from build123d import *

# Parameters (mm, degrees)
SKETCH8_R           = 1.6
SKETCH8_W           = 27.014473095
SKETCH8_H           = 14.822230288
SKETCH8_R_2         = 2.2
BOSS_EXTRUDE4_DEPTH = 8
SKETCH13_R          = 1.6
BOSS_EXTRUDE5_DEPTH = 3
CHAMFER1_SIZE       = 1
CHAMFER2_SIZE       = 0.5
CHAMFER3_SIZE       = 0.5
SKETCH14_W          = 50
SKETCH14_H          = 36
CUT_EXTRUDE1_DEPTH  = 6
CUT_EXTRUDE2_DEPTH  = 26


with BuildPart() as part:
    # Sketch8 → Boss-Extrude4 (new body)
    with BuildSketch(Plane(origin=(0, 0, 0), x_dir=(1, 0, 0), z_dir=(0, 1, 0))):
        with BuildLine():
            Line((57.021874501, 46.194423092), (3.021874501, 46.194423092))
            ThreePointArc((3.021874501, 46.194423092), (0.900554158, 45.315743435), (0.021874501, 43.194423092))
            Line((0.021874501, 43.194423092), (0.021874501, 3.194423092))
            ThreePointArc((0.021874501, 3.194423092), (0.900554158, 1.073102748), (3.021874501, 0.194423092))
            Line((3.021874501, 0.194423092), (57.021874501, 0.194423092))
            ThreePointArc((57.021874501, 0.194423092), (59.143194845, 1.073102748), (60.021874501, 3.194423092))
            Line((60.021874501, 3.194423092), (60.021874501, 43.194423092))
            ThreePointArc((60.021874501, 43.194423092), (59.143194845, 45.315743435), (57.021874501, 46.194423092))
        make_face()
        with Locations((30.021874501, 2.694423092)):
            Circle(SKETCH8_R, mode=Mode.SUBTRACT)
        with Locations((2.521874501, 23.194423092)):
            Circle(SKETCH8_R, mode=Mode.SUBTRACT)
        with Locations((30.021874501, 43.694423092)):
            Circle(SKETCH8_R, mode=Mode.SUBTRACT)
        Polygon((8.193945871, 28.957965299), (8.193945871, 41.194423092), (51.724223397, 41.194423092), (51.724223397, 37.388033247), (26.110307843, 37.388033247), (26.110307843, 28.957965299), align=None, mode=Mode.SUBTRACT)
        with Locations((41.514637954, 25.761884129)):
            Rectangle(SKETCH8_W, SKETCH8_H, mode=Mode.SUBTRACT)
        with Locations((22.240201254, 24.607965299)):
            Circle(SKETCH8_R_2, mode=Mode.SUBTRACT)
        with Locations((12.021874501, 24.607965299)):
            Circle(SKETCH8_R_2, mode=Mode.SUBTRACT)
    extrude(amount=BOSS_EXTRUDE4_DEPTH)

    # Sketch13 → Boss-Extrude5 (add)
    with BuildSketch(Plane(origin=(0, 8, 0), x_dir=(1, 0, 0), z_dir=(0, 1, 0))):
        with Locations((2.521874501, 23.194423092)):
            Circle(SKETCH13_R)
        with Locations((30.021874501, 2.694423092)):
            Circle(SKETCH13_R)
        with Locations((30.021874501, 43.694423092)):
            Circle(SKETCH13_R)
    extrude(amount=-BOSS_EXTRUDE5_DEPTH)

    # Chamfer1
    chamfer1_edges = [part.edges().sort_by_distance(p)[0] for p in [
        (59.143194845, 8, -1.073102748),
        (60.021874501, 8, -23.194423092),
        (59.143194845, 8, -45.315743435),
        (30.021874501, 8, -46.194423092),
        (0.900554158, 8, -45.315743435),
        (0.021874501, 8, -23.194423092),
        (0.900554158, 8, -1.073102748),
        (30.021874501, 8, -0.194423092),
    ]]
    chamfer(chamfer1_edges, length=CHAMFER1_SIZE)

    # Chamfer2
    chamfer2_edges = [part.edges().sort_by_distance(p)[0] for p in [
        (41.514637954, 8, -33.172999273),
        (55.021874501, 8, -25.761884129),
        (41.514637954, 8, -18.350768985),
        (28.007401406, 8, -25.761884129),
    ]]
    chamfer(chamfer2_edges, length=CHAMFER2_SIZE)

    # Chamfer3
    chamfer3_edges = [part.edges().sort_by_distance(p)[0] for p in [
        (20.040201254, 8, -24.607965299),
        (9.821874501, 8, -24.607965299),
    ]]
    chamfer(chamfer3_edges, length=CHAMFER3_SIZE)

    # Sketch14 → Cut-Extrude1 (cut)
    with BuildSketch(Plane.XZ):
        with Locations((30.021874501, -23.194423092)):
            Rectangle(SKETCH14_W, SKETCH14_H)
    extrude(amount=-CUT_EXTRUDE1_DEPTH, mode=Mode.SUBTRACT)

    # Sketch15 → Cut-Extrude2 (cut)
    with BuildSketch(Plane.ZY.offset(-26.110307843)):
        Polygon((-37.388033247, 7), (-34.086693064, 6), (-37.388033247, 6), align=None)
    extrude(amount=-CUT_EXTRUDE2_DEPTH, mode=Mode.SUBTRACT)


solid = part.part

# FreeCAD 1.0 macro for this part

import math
import FreeCAD as App
import Part
import Sketcher
from FreeCAD import Vector


def edges_at(feature, points):
    """Names of the edges that pass closest to the given points."""
    edges = feature.Shape.Edges
    near = lambda p: min(range(len(edges)), key=lambda i: edges[i].distToShape(Part.Vertex(*p))[0])
    return sorted({f"Edge{near(p) + 1}" for p in points})

doc = App.newDocument("Part")
body = doc.addObject("PartDesign::Body", "Body")

sketch1 = body.newObject("Sketcher::SketchObject", "Sketch")
sketch1.AttachmentSupport = (doc.getObject("XZ_Plane"), [""])
sketch1.MapMode = "FlatFace"
sketch1.addGeometry(Part.LineSegment(Vector(57, -46.2, 0), Vector(3, -46.2, 0)), False)
sketch1.addGeometry(Part.ArcOfCircle(Part.Circle(Vector(3, -43.2, 0), Vector(0, 0, 1), 3), math.radians(-180), math.radians(-90)), False)
sketch1.addGeometry(Part.LineSegment(Vector(0, -43.2, 0), Vector(0, -3.2, 0)), False)
sketch1.addGeometry(Part.ArcOfCircle(Part.Circle(Vector(3, -3.2, 0), Vector(0, 0, 1), 3), math.radians(90), math.radians(180)), False)
sketch1.addGeometry(Part.LineSegment(Vector(3, -0.2, 0), Vector(57, -0.2, 0)), False)
sketch1.addGeometry(Part.ArcOfCircle(Part.Circle(Vector(57, -3.2, 0), Vector(0, 0, 1), 3), math.radians(0), math.radians(90)), False)
sketch1.addGeometry(Part.LineSegment(Vector(60, -3.2, 0), Vector(60, -43.2, 0)), False)
sketch1.addGeometry(Part.ArcOfCircle(Part.Circle(Vector(57, -43.2, 0), Vector(0, 0, 1), 3), math.radians(-90), math.radians(0)), False)
sketch1.addGeometry(Part.Circle(Vector(30, -2.7, 0), Vector(0, 0, 1), 1.6), False)
sketch1.addGeometry(Part.Circle(Vector(2.5, -23.2, 0), Vector(0, 0, 1), 1.6), False)
sketch1.addGeometry(Part.Circle(Vector(12, -24.6, 0), Vector(0, 0, 1), 2.2), False)
sketch1.addGeometry(Part.Circle(Vector(22.2, -24.6, 0), Vector(0, 0, 1), 2.2), False)
sketch1.addGeometry(Part.LineSegment(Vector(55, -18.4, 0), Vector(28, -18.4, 0)), False)
sketch1.addGeometry(Part.LineSegment(Vector(28, -18.4, 0), Vector(28, -33.2, 0)), False)
sketch1.addGeometry(Part.LineSegment(Vector(28, -33.2, 0), Vector(55, -33.2, 0)), False)
sketch1.addGeometry(Part.LineSegment(Vector(55, -33.2, 0), Vector(55, -18.4, 0)), False)
sketch1.addGeometry(Part.LineSegment(Vector(26.1, -29, 0), Vector(8.2, -29, 0)), False)
sketch1.addGeometry(Part.LineSegment(Vector(8.2, -29, 0), Vector(8.2, -41.2, 0)), False)
sketch1.addGeometry(Part.LineSegment(Vector(8.2, -41.2, 0), Vector(51.7, -41.2, 0)), False)
sketch1.addGeometry(Part.LineSegment(Vector(51.7, -41.2, 0), Vector(51.7, -37.4, 0)), False)
sketch1.addGeometry(Part.LineSegment(Vector(51.7, -37.4, 0), Vector(26.1, -37.4, 0)), False)
sketch1.addGeometry(Part.LineSegment(Vector(26.1, -37.4, 0), Vector(26.1, -29, 0)), False)
sketch1.addGeometry(Part.Circle(Vector(30, -43.7, 0), Vector(0, 0, 1), 1.6), False)
sketch1.addConstraint(Sketcher.Constraint("Tangent", 0, 2, 1, 2))
sketch1.addConstraint(Sketcher.Constraint("Tangent", 1, 1, 2, 1))
sketch1.addConstraint(Sketcher.Constraint("Tangent", 2, 2, 3, 2))
sketch1.addConstraint(Sketcher.Constraint("Tangent", 3, 1, 4, 1))
sketch1.addConstraint(Sketcher.Constraint("Tangent", 4, 2, 5, 2))
sketch1.addConstraint(Sketcher.Constraint("Tangent", 5, 1, 6, 1))
sketch1.addConstraint(Sketcher.Constraint("Tangent", 6, 2, 7, 2))
sketch1.addConstraint(Sketcher.Constraint("Tangent", 7, 1, 0, 1))
sketch1.addConstraint(Sketcher.Constraint("Coincident", 12, 2, 13, 1))
sketch1.addConstraint(Sketcher.Constraint("Coincident", 13, 2, 14, 1))
sketch1.addConstraint(Sketcher.Constraint("Coincident", 14, 2, 15, 1))
sketch1.addConstraint(Sketcher.Constraint("Coincident", 15, 2, 12, 1))
sketch1.addConstraint(Sketcher.Constraint("Coincident", 16, 2, 17, 1))
sketch1.addConstraint(Sketcher.Constraint("Coincident", 17, 2, 18, 1))
sketch1.addConstraint(Sketcher.Constraint("Coincident", 18, 2, 19, 1))
sketch1.addConstraint(Sketcher.Constraint("Coincident", 19, 2, 20, 1))
sketch1.addConstraint(Sketcher.Constraint("Coincident", 20, 2, 21, 1))
sketch1.addConstraint(Sketcher.Constraint("Coincident", 21, 2, 16, 1))
sketch1.addConstraint(Sketcher.Constraint("Horizontal", 0))
sketch1.addConstraint(Sketcher.Constraint("Vertical", 2))
sketch1.addConstraint(Sketcher.Constraint("Horizontal", 4))
sketch1.addConstraint(Sketcher.Constraint("Vertical", 6))
sketch1.addConstraint(Sketcher.Constraint("Horizontal", 12))
sketch1.addConstraint(Sketcher.Constraint("Vertical", 13))
sketch1.addConstraint(Sketcher.Constraint("Horizontal", 14))
sketch1.addConstraint(Sketcher.Constraint("Vertical", 15))
sketch1.addConstraint(Sketcher.Constraint("Horizontal", 16))
sketch1.addConstraint(Sketcher.Constraint("Vertical", 17))
sketch1.addConstraint(Sketcher.Constraint("Horizontal", 18))
sketch1.addConstraint(Sketcher.Constraint("Vertical", 19))
sketch1.addConstraint(Sketcher.Constraint("Horizontal", 20))
sketch1.addConstraint(Sketcher.Constraint("Vertical", 21))
sketch1.addConstraint(Sketcher.Constraint("Equal", 1, 3))
sketch1.addConstraint(Sketcher.Constraint("Equal", 3, 5))
sketch1.addConstraint(Sketcher.Constraint("Equal", 5, 7))
sketch1.addConstraint(Sketcher.Constraint("Equal", 8, 9))
sketch1.addConstraint(Sketcher.Constraint("Equal", 10, 11))
sketch1.addConstraint(Sketcher.Constraint("Equal", 9, 22))
sketch1.addConstraint(Sketcher.Constraint("Horizontal", 10, 3, 11, 3))
sketch1.addConstraint(Sketcher.Constraint("Vertical", 8, 3, 22, 3))
sketch1.addConstraint(Sketcher.Constraint("Radius", 1, 3.0))
sketch1.addConstraint(Sketcher.Constraint("Diameter", 8, 3.2))
sketch1.addConstraint(Sketcher.Constraint("Diameter", 10, 4.4))
sketch1.addConstraint(Sketcher.Constraint("DistanceX", 0, 2, 0, 1, 54.0))
sketch1.addConstraint(Sketcher.Constraint("DistanceY", 2, 1, 2, 2, 40.0))
sketch1.addConstraint(Sketcher.Constraint("DistanceX", 3, 3, 8, 3, 27.0))
sketch1.addConstraint(Sketcher.Constraint("DistanceY", 1, 3, 9, 3, 20.0))
sketch1.addConstraint(Sketcher.Constraint("DistanceX", 1, 3, 10, 3, 9.0))
sketch1.addConstraint(Sketcher.Constraint("DistanceX", 14, 2, 7, 3, 2.0))
sketch1.addConstraint(Sketcher.Constraint("DistanceY", 1, 3, 17, 2, 2.0))
sketch1.addConstraint(Sketcher.Constraint("DistanceY", 3, 3, 8, 3, 0.5))
sketch1.addConstraint(Sketcher.Constraint("DistanceX", 9, 3, 1, 3, 0.5))
sketch1.addConstraint(Sketcher.Constraint("DistanceY", 22, 3, 1, 3, 0.5))
sketch1.addConstraint(Sketcher.Constraint("DistanceY", 16, 2, 10, 3, 4.35))
sketch1.addConstraint(Sketcher.Constraint("DistanceY", 13, 2, -1, 1, 33.172999))
sketch1.addConstraint(Sketcher.Constraint("DistanceX", 16, 2, 16, 1, 17.916362))
sketch1.addConstraint(Sketcher.Constraint("DistanceY", 13, 2, 13, 1, 14.82223))
sketch1.addConstraint(Sketcher.Constraint("DistanceY", 19, 1, 19, 2, 3.80639))
sketch1.addConstraint(Sketcher.Constraint("DistanceX", -1, 1, 11, 3, 22.240201))
sketch1.addConstraint(Sketcher.Constraint("DistanceX", -1, 1, 12, 2, 28.007401))
sketch1.addConstraint(Sketcher.Constraint("DistanceX", 12, 2, 12, 1, 27.014473))
sketch1.addConstraint(Sketcher.Constraint("DistanceX", 18, 1, 18, 2, 43.530278))
sketch1.addConstraint(Sketcher.Constraint("DistanceY", 17, 2, 17, 1, 12.236458))
sketch1.addConstraint(Sketcher.Constraint("DistanceX", 16, 2, 10, 3, 3.827929))
sketch1.addConstraint(Sketcher.Constraint("DistanceY", 1, 3, -1, 1, 43.194423))
pad1 = body.newObject("PartDesign::Pad", "Pad")
pad1.Profile = sketch1
pad1.Length = 8
pad1.Reversed = True

sketch2 = body.newObject("Sketcher::SketchObject", "Sketch001")
sketch2.AttachmentSupport = (doc.getObject("XZ_Plane"), [""])
sketch2.MapMode = "FlatFace"
sketch2.AttachmentOffset = App.Placement(Vector(0, 0, -8), App.Rotation())
sketch2.addGeometry(Part.Circle(Vector(2.5, -23.2, 0), Vector(0, 0, 1), 1.6), False)
sketch2.addGeometry(Part.Circle(Vector(30, -2.7, 0), Vector(0, 0, 1), 1.6), False)
sketch2.addGeometry(Part.Circle(Vector(30, -43.7, 0), Vector(0, 0, 1), 1.6), False)
sketch2.addConstraint(Sketcher.Constraint("Equal", 0, 1))
sketch2.addConstraint(Sketcher.Constraint("Equal", 1, 2))
sketch2.addConstraint(Sketcher.Constraint("Vertical", 1, 3, 2, 3))
sketch2.addConstraint(Sketcher.Constraint("Diameter", 0, 3.2))
sketch2.addConstraint(Sketcher.Constraint("DistanceY", 2, 3, 1, 3, 41.0))
sketch2.addConstraint(Sketcher.Constraint("DistanceX", 0, 3, 1, 3, 27.5))
sketch2.addConstraint(Sketcher.Constraint("DistanceY", 0, 3, 1, 3, 20.5))
sketch2.addConstraint(Sketcher.Constraint("DistanceX", -1, 1, 0, 3, 2.521875))
sketch2.addConstraint(Sketcher.Constraint("DistanceY", 0, 3, -1, 1, 23.194423))
pad2 = body.newObject("PartDesign::Pad", "Pad001")
pad2.Profile = sketch2
pad2.Length = 3
doc.recompute()

chamfer = body.newObject("PartDesign::Chamfer", "Chamfer")
chamfer.Base = (pad2, edges_at(pad2, [
    (59.143, 8, -1.073),
    (60.022, 8, -23.194),
    (59.143, 8, -45.316),
    (30.022, 8, -46.194),
    (0.901, 8, -45.316),
    (0.022, 8, -23.194),
    (0.901, 8, -1.073),
    (30.022, 8, -0.194),
]))
chamfer.Size = 1
doc.recompute()

chamfer2 = body.newObject("PartDesign::Chamfer", "Chamfer001")
chamfer2.Base = (chamfer, edges_at(chamfer, [
    (41.515, 8, -33.173),
    (55.022, 8, -25.762),
    (41.515, 8, -18.351),
    (28.007, 8, -25.762),
]))
chamfer2.Size = 0.5
doc.recompute()

chamfer3 = body.newObject("PartDesign::Chamfer", "Chamfer002")
chamfer3.Base = (chamfer2, edges_at(chamfer2, [(20.04, 8, -24.608), (9.822, 8, -24.608)]))
chamfer3.Size = 0.5

sketch3 = body.newObject("Sketcher::SketchObject", "Sketch002")
sketch3.AttachmentSupport = (doc.getObject("XZ_Plane"), [""])
sketch3.MapMode = "FlatFace"
sketch3.addGeometry(Part.LineSegment(Vector(5, -5, 0), Vector(5, -41, 0)), False)
sketch3.addGeometry(Part.LineSegment(Vector(5, -41, 0), Vector(55, -41, 0)), False)
sketch3.addGeometry(Part.LineSegment(Vector(55, -41, 0), Vector(55, -5, 0)), False)
sketch3.addGeometry(Part.LineSegment(Vector(55, -5, 0), Vector(5, -5, 0)), False)
sketch3.addConstraint(Sketcher.Constraint("Coincident", 0, 2, 1, 1))
sketch3.addConstraint(Sketcher.Constraint("Coincident", 1, 2, 2, 1))
sketch3.addConstraint(Sketcher.Constraint("Coincident", 2, 2, 3, 1))
sketch3.addConstraint(Sketcher.Constraint("Coincident", 3, 2, 0, 1))
sketch3.addConstraint(Sketcher.Constraint("Vertical", 0))
sketch3.addConstraint(Sketcher.Constraint("Horizontal", 1))
sketch3.addConstraint(Sketcher.Constraint("Vertical", 2))
sketch3.addConstraint(Sketcher.Constraint("Horizontal", 3))
sketch3.addConstraint(Sketcher.Constraint("DistanceX", 1, 1, 1, 2, 50.0))
sketch3.addConstraint(Sketcher.Constraint("DistanceY", 0, 2, 0, 1, 36.0))
sketch3.addConstraint(Sketcher.Constraint("DistanceX", -1, 1, 0, 2, 5.021875))
sketch3.addConstraint(Sketcher.Constraint("DistanceY", 0, 2, -1, 1, 41.194423))
pocket1 = body.newObject("PartDesign::Pocket", "Pocket")
pocket1.Profile = sketch3
pocket1.Length = 6

sketch4 = body.newObject("Sketcher::SketchObject", "Sketch003")
sketch4.AttachmentSupport = (doc.getObject("YZ_Plane"), [""])
sketch4.MapMode = "FlatFace"
sketch4.AttachmentOffset = App.Placement(Vector(0, 0, 26.110308), App.Rotation())
sketch4.addGeometry(Part.LineSegment(Vector(6, -34.1, 0), Vector(7, -37.4, 0)), False)
sketch4.addGeometry(Part.LineSegment(Vector(7, -37.4, 0), Vector(6, -37.4, 0)), False)
sketch4.addGeometry(Part.LineSegment(Vector(6, -37.4, 0), Vector(6, -34.1, 0)), False)
sketch4.addConstraint(Sketcher.Constraint("Coincident", 0, 2, 1, 1))
sketch4.addConstraint(Sketcher.Constraint("Coincident", 1, 2, 2, 1))
sketch4.addConstraint(Sketcher.Constraint("Coincident", 2, 2, 0, 1))
sketch4.addConstraint(Sketcher.Constraint("Horizontal", 1))
sketch4.addConstraint(Sketcher.Constraint("Vertical", 2))
sketch4.addConstraint(Sketcher.Constraint("DistanceX", 1, 2, 1, 1, 1.0))
sketch4.addConstraint(Sketcher.Constraint("DistanceX", -1, 1, 0, 2, 7.0))
sketch4.addConstraint(Sketcher.Constraint("DistanceY", 2, 1, 2, 2, 3.30134))
sketch4.addConstraint(Sketcher.Constraint("DistanceY", 0, 2, -1, 1, 37.388033))
pocket2 = body.newObject("PartDesign::Pocket", "Pocket001")
pocket2.Profile = sketch4
pocket2.Length = 26
pocket2.Reversed = True

doc.recompute()
